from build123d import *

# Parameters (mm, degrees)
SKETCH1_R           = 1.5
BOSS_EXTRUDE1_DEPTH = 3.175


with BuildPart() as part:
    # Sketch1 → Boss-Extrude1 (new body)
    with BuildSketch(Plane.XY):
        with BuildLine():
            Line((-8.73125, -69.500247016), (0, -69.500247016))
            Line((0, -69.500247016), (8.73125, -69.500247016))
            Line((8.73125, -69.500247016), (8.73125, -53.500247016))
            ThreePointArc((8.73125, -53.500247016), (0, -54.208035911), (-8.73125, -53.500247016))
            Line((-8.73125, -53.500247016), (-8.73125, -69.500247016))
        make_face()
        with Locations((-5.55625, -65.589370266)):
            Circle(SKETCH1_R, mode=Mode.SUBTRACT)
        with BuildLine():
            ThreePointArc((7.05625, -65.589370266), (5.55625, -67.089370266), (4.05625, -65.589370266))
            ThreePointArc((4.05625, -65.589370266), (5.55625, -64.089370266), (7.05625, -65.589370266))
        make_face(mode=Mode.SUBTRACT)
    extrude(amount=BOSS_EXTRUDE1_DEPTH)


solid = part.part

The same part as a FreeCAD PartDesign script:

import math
import FreeCAD as App
import Part
import Sketcher

V = App.Vector
Q = App.Units.Quantity

doc = App.newDocument("Part")
body = doc.addObject("PartDesign::Body", "Body")

sketch1 = body.newObject("Sketcher::SketchObject", "Sketch")
sketch1.AttachmentSupport = (doc.getObject("XY_Plane"), [""])
sketch1.MapMode = "FlatFace"
sketch1.addGeometry(Part.LineSegment(V(-8.7, -69.5, 0), V(8.7, -69.5, 0)), False)
sketch1.addGeometry(Part.LineSegment(V(8.7, -69.5, 0), V(8.7, -53.5, 0)), False)
sketch1.addGeometry(Part.ArcOfCircle(Part.Circle(V(0, 0, 0), V(0, 0, 1), 54.2), math.radians(-99.27), math.radians(-80.73)), False)
sketch1.addGeometry(Part.LineSegment(V(-8.7, -53.5, 0), V(-8.7, -69.5, 0)), False)
sketch1.addGeometry(Part.Circle(V(-5.6, -65.6, 0), V(0, 0, 1), 1.5), False)
sketch1.addGeometry(Part.Circle(V(5.6, -65.6, 0), V(0, 0, 1), 1.5), False)
sketch1.addConstraint(Sketcher.Constraint("Coincident", 0, 2, 1, 1))
sketch1.addConstraint(Sketcher.Constraint("Coincident", 1, 2, 2, 2))
sketch1.addConstraint(Sketcher.Constraint("Coincident", 2, 1, 3, 1))
sketch1.addConstraint(Sketcher.Constraint("Coincident", 3, 2, 0, 1))
sketch1.addConstraint(Sketcher.Constraint("Horizontal", 0))
sketch1.addConstraint(Sketcher.Constraint("Vertical", 1))
sketch1.addConstraint(Sketcher.Constraint("Vertical", 3))
sketch1.addConstraint(Sketcher.Constraint("Coincident", 2, 3, -1, 1))
sketch1.addConstraint(Sketcher.Constraint("Equal", 4, 5))
sketch1.addConstraint(Sketcher.Constraint("Symmetric", 4, 3, 5, 3, -2))
sketch1.addConstraint(Sketcher.Constraint("Horizontal", 1, 2, 2, 1))
sketch1.addConstraint(Sketcher.Constraint("Diameter", 4, Q("3 mm")))
sketch1.addConstraint(Sketcher.Constraint("DistanceY", 1, 1, 1, 2, Q("16 mm")))
sketch1.addConstraint(Sketcher.Constraint("DistanceX", 0, 1, 0, 2, Q("17.4625 mm")))
sketch1.addConstraint(Sketcher.Constraint("Radius", 2, Q("54.208036 mm")))
sketch1.addConstraint(Sketcher.Constraint("DistanceX", 5, 3, 0, 2, Q("3.175 mm")))
sketch1.addConstraint(Sketcher.Constraint("DistanceY", 4, 3, -1, 1, Q("65.58937 mm")))
pad1 = body.newObject("PartDesign::Pad", "Pad")
pad1.Profile = sketch1
pad1.Length = 3.175

doc.recompute()
